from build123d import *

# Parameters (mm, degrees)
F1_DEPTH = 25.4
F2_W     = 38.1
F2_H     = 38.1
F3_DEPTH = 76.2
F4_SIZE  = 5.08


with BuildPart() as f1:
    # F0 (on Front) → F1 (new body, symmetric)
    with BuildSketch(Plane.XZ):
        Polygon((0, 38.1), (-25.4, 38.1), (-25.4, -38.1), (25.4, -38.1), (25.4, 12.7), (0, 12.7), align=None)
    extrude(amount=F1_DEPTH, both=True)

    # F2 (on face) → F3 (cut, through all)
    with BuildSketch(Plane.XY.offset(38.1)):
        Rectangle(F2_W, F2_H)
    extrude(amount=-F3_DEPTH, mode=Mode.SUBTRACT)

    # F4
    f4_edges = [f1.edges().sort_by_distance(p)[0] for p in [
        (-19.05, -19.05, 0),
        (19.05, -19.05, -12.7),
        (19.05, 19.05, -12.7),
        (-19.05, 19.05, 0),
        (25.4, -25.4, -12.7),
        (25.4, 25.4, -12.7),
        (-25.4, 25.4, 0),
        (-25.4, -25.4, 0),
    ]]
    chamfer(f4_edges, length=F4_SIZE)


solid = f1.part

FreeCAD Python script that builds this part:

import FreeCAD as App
import Part
import Sketcher

V = App.Vector
Q = App.Units.Quantity


def edges_at(feature, points):
    """Names of the edges that pass closest to the given points."""
    edges = feature.Shape.Edges
    near = lambda p: min(range(len(edges)), key=lambda i: edges[i].distToShape(Part.Vertex(*p))[0])
    return sorted({f"Edge{near(p) + 1}" for p in points})

doc = App.newDocument("Part")
body = doc.addObject("PartDesign::Body", "Body")

# Sketch on XZ plane
sketch1 = body.newObject("Sketcher::SketchObject", "Sketch")
sketch1.AttachmentSupport = (doc.getObject("XZ_Plane"), [""])
sketch1.MapMode = "FlatFace"
sketch1.addGeometry([
    Part.LineSegment(V(0, 38, 0), V(-25, 38, 0)),  # 0
    Part.LineSegment(V(-25, 38, 0), V(-25, -38, 0)),  # 1
    Part.LineSegment(V(-25, -38, 0), V(25, -38, 0)),  # 2
    Part.LineSegment(V(25, -38, 0), V(25, 13, 0)),  # 3
    Part.LineSegment(V(25, 13, 0), V(0, 13, 0)),  # 4
    Part.LineSegment(V(0, 13, 0), V(0, 38, 0)),  # 5
], False)
sketch1.addConstraint([
    Sketcher.Constraint("Coincident", 0, 2, 1, 1),
    Sketcher.Constraint("Coincident", 1, 2, 2, 1),
    Sketcher.Constraint("Coincident", 2, 2, 3, 1),
    Sketcher.Constraint("Coincident", 3, 2, 4, 1),
    Sketcher.Constraint("Coincident", 4, 2, 5, 1),
    Sketcher.Constraint("Coincident", 5, 2, 0, 1),
    Sketcher.Constraint("Horizontal", 0),
    Sketcher.Constraint("Vertical", 1),
    Sketcher.Constraint("Horizontal", 2),
    Sketcher.Constraint("Vertical", 3),
    Sketcher.Constraint("Horizontal", 4),
    Sketcher.Constraint("Vertical", 5),
    Sketcher.Constraint("Symmetric", 0, 2, 2, 2, -1, 1),
    Sketcher.Constraint("PointOnObject", 4, 2, -2),
    Sketcher.Constraint("Equal", 2, 3),
    Sketcher.Constraint("Equal", 4, 5),
    Sketcher.Constraint("DistanceX", 0, 2, 0, 1, Q("1 in")),
])
pad1 = body.newObject("PartDesign::Pad", "Pad")
pad1.Profile = sketch1
pad1.Length = Q("2 in")
pad1.Midplane = True

# Sketch on XY plane
sketch2 = body.newObject("Sketcher::SketchObject", "Sketch001")
sketch2.AttachmentSupport = (doc.getObject("XY_Plane"), [""])
sketch2.MapMode = "FlatFace"
sketch2.AttachmentOffset = App.Placement(V(0, 0, 1.5 * 25.4), App.Rotation())
sketch2.addGeometry([
    Part.LineSegment(V(-19, 19, 0), V(-19, -19, 0)),
    Part.LineSegment(V(-19, -19, 0), V(19, -19, 0)),
    Part.LineSegment(V(19, -19, 0), V(19, 19, 0)),
    Part.LineSegment(V(19, 19, 0), V(-19, 19, 0)),
], False)
sketch2.addConstraint([
    Sketcher.Constraint("Coincident", 0, 2, 1, 1),
    Sketcher.Constraint("Coincident", 1, 2, 2, 1),
    Sketcher.Constraint("Coincident", 2, 2, 3, 1),
    Sketcher.Constraint("Coincident", 3, 2, 0, 1),
    Sketcher.Constraint("Vertical", 0),
    Sketcher.Constraint("Horizontal", 1),
    Sketcher.Constraint("Vertical", 2),
    Sketcher.Constraint("Horizontal", 3),
    Sketcher.Constraint("Symmetric", 0, 2, 2, 2, -1, 1),
    Sketcher.Constraint("Equal", 3, 0),
    Sketcher.Constraint("DistanceX", 1, 1, 1, 2, Q("1.5 in")),
])
pocket1 = body.newObject("PartDesign::Pocket", "Pocket")
pocket1.Profile = sketch2
pocket1.Type = "ThroughAll"
doc.recompute()

chamfer = body.newObject("PartDesign::Chamfer", "Chamfer")
chamfer.Base = (pocket1, edges_at(pocket1, [
    (-19.05, -19.05, 0),
    (19.05, -19.05, -12.7),
    (19.05, 19.05, -12.7),
    (-19.05, 19.05, 0),
    (25.4, -25.4, -12.7),
    (25.4, 25.4, -12.7),
    (-25.4, 25.4, 0),
    (-25.4, -25.4, 0),
]))
chamfer.Size = Q("0.2 in")

doc.recompute()
